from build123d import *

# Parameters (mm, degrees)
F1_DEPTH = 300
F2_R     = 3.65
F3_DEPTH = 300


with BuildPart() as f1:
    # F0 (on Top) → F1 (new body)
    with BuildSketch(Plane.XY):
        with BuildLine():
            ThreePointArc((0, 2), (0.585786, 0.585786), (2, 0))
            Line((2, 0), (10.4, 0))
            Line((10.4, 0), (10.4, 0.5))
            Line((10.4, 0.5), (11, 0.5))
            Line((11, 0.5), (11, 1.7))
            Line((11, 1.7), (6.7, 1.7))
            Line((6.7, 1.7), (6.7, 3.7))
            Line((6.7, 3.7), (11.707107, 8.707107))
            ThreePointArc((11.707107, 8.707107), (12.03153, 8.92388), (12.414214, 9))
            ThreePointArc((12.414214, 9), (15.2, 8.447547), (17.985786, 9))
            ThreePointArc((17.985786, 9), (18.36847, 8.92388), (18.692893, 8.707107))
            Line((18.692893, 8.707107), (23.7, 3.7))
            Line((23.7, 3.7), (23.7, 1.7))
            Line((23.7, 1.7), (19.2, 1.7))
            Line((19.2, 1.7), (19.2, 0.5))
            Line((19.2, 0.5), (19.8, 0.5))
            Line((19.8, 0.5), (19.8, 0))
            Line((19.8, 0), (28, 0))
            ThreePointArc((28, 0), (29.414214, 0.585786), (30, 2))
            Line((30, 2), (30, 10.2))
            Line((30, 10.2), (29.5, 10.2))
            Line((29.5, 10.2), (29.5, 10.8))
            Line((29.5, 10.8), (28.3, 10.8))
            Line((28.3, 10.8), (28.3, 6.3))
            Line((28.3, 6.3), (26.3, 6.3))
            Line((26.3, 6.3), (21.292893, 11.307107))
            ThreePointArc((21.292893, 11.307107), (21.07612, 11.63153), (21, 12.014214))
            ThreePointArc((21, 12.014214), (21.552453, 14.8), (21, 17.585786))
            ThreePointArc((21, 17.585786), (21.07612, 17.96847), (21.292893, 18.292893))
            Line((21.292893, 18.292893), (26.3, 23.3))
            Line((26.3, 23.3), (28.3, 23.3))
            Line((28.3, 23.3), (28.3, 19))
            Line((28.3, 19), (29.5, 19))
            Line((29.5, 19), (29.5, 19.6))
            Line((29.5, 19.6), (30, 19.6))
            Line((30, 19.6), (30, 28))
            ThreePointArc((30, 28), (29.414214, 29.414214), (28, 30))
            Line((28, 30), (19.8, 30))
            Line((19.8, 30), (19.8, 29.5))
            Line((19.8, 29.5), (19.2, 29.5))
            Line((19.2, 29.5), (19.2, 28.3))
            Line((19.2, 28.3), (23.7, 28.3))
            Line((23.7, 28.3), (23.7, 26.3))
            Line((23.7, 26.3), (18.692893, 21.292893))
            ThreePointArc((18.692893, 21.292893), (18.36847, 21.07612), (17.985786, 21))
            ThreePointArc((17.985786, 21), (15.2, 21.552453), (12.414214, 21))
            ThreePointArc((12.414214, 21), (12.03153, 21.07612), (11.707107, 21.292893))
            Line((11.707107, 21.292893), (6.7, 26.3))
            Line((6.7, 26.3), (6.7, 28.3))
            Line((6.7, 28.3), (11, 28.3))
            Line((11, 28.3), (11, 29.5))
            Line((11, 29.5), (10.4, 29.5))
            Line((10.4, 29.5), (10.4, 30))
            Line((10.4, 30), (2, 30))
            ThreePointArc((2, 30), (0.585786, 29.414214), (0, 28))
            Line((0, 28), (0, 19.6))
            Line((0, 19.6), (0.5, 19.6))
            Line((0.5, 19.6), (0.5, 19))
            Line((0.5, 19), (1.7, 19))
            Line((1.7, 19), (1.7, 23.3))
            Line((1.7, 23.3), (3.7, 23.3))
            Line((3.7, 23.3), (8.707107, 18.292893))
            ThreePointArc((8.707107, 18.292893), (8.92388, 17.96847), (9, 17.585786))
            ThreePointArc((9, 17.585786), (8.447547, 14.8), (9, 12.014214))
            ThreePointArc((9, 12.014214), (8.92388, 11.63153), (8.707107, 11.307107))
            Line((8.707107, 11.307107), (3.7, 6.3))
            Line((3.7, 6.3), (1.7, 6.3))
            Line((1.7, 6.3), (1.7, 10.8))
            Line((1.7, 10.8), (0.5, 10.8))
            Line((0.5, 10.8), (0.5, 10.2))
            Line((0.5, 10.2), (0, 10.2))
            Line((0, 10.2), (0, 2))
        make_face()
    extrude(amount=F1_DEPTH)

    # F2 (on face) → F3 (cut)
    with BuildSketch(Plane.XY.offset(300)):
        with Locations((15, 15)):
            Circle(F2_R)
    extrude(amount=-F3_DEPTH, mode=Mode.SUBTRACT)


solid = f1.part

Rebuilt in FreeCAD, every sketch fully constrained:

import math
import FreeCAD as App
import Part
import Sketcher
from FreeCAD import Vector

doc = App.newDocument("Part")
params = doc.addObject("Spreadsheet::Sheet", "Params")
for row, (alias, value) in enumerate([
    ("sketch1_radius", "1.999999 mm"),
    ("sketch1_width", "2 mm"),
    ("sketch1_width2", "8.4 mm"),
    ("sketch1_width3", "0.6 mm"),
    ("sketch1_width4", "4.3 mm"),
    ("pad1_length", "300 mm"),
    ("sketch2_diameter", "7.3 mm"),
    ("pocket1_length", "300 mm"),
], start=1):
    params.set(f"A{row}", alias)
    params.set(f"B{row}", "=" + value)
    params.setAlias(f"B{row}", alias)

body = doc.addObject("PartDesign::Body", "Body")

# Sketch on XY plane
sketch1 = body.newObject("Sketcher::SketchObject", "Sketch")
sketch1.AttachmentSupport = (doc.getObject("XY_Plane"), [""])
sketch1.MapMode = "FlatFace"
sketch1.addGeometry([
    Part.ArcOfCircle(Part.Circle(Vector(2, 2, 0), Vector(0, 0, 1), 2), math.radians(180), math.radians(270)),  # 0
    Part.LineSegment(Vector(2, 0, 0), Vector(10.4, 0, 0)),  # 1
    Part.LineSegment(Vector(10.4, 0, 0), Vector(10.4, 0.5, 0)),  # 2
    Part.LineSegment(Vector(10.4, 0.5, 0), Vector(11, 0.5, 0)),  # 3
    Part.LineSegment(Vector(11, 0.5, 0), Vector(11, 1.7, 0)),  # 4
    Part.LineSegment(Vector(11, 1.7, 0), Vector(6.7, 1.7, 0)),  # 5
    Part.LineSegment(Vector(6.7, 1.7, 0), Vector(6.7, 3.7, 0)),  # 6
    Part.LineSegment(Vector(6.7, 3.7, 0), Vector(11.7, 8.7, 0)),  # 7
    Part.ArcOfCircle(Part.Circle(Vector(12.4, 8, 0), Vector(0, 0, 1), 1), math.radians(90), math.radians(135)),  # 8
    Part.ArcOfCircle(Part.Circle(Vector(15.2, 15.7, 0), Vector(0, 0, 1), 7.3), math.radians(-112), math.radians(-68)),  # 9
    Part.ArcOfCircle(Part.Circle(Vector(18, 8, 0), Vector(0, 0, 1), 1), math.radians(45), math.radians(90)),  # 10
    Part.LineSegment(Vector(18.7, 8.7, 0), Vector(23.7, 3.7, 0)),  # 11
    Part.LineSegment(Vector(23.7, 3.7, 0), Vector(23.7, 1.7, 0)),  # 12
    Part.LineSegment(Vector(23.7, 1.7, 0), Vector(19.2, 1.7, 0)),  # 13
    Part.LineSegment(Vector(19.2, 1.7, 0), Vector(19.2, 0.5, 0)),  # 14
    Part.LineSegment(Vector(19.2, 0.5, 0), Vector(19.8, 0.5, 0)),  # 15
    Part.LineSegment(Vector(19.8, 0.5, 0), Vector(19.8, 0, 0)),  # 16
    Part.LineSegment(Vector(19.8, 0, 0), Vector(28, 0, 0)),  # 17
    Part.ArcOfCircle(Part.Circle(Vector(28, 2, 0), Vector(0, 0, 1), 2), math.radians(-90), math.radians(0)),  # 18
    Part.LineSegment(Vector(30, 2, 0), Vector(30, 10.2, 0)),  # 19
    Part.LineSegment(Vector(30, 10.2, 0), Vector(29.5, 10.2, 0)),  # 20
    Part.LineSegment(Vector(29.5, 10.2, 0), Vector(29.5, 10.8, 0)),  # 21
    Part.LineSegment(Vector(29.5, 10.8, 0), Vector(28.3, 10.8, 0)),  # 22
    Part.LineSegment(Vector(28.3, 10.8, 0), Vector(28.3, 6.3, 0)),  # 23
    Part.LineSegment(Vector(28.3, 6.3, 0), Vector(26.3, 6.3, 0)),  # 24
    Part.LineSegment(Vector(26.3, 6.3, 0), Vector(21.3, 11.3, 0)),  # 25
    Part.ArcOfCircle(Part.Circle(Vector(22, 12, 0), Vector(0, 0, 1), 1), math.radians(180), math.radians(225)),  # 26
    Part.ArcOfCircle(Part.Circle(Vector(14.3, 14.8, 0), Vector(0, 0, 1), 7.3), math.radians(-22), math.radians(22)),  # 27
    Part.ArcOfCircle(Part.Circle(Vector(22, 17.6, 0), Vector(0, 0, 1), 1), math.radians(135), math.radians(180)),  # 28
    Part.LineSegment(Vector(21.3, 18.3, 0), Vector(26.3, 23.3, 0)),  # 29
    Part.LineSegment(Vector(26.3, 23.3, 0), Vector(28.3, 23.3, 0)),  # 30
    Part.LineSegment(Vector(28.3, 23.3, 0), Vector(28.3, 19, 0)),  # 31
    Part.LineSegment(Vector(28.3, 19, 0), Vector(29.5, 19, 0)),  # 32
    Part.LineSegment(Vector(29.5, 19, 0), Vector(29.5, 19.6, 0)),  # 33
    Part.LineSegment(Vector(29.5, 19.6, 0), Vector(30, 19.6, 0)),  # 34
    Part.LineSegment(Vector(30, 19.6, 0), Vector(30, 28, 0)),  # 35
    Part.ArcOfCircle(Part.Circle(Vector(28, 28, 0), Vector(0, 0, 1), 2), math.radians(0), math.radians(90)),  # 36
    Part.LineSegment(Vector(28, 30, 0), Vector(19.8, 30, 0)),  # 37
    Part.LineSegment(Vector(19.8, 30, 0), Vector(19.8, 29.5, 0)),  # 38
    Part.LineSegment(Vector(19.8, 29.5, 0), Vector(19.2, 29.5, 0)),  # 39
    Part.LineSegment(Vector(19.2, 29.5, 0), Vector(19.2, 28.3, 0)),  # 40
    Part.LineSegment(Vector(19.2, 28.3, 0), Vector(23.7, 28.3, 0)),  # 41
    Part.LineSegment(Vector(23.7, 28.3, 0), Vector(23.7, 26.3, 0)),  # 42
    Part.LineSegment(Vector(23.7, 26.3, 0), Vector(18.7, 21.3, 0)),  # 43
    Part.ArcOfCircle(Part.Circle(Vector(18, 22, 0), Vector(0, 0, 1), 1), math.radians(-90), math.radians(-45)),  # 44
    Part.ArcOfCircle(Part.Circle(Vector(15.2, 14.3, 0), Vector(0, 0, 1), 7.3), math.radians(68), math.radians(112)),  # 45
    Part.ArcOfCircle(Part.Circle(Vector(12.4, 22, 0), Vector(0, 0, 1), 1), math.radians(-135), math.radians(-90)),  # 46
    Part.LineSegment(Vector(11.7, 21.3, 0), Vector(6.7, 26.3, 0)),  # 47
    Part.LineSegment(Vector(6.7, 26.3, 0), Vector(6.7, 28.3, 0)),  # 48
    Part.LineSegment(Vector(6.7, 28.3, 0), Vector(11, 28.3, 0)),  # 49
    Part.LineSegment(Vector(11, 28.3, 0), Vector(11, 29.5, 0)),  # 50
    Part.LineSegment(Vector(11, 29.5, 0), Vector(10.4, 29.5, 0)),  # 51
    Part.LineSegment(Vector(10.4, 29.5, 0), Vector(10.4, 30, 0)),  # 52
    Part.LineSegment(Vector(10.4, 30, 0), Vector(2, 30, 0)),  # 53
    Part.ArcOfCircle(Part.Circle(Vector(2, 28, 0), Vector(0, 0, 1), 2), math.radians(90), math.radians(180)),  # 54
    Part.LineSegment(Vector(0, 28, 0), Vector(0, 19.6, 0)),  # 55
    Part.LineSegment(Vector(0, 19.6, 0), Vector(0.5, 19.6, 0)),  # 56
    Part.LineSegment(Vector(0.5, 19.6, 0), Vector(0.5, 19, 0)),  # 57
    Part.LineSegment(Vector(0.5, 19, 0), Vector(1.7, 19, 0)),  # 58
    Part.LineSegment(Vector(1.7, 19, 0), Vector(1.7, 23.3, 0)),  # 59
    Part.LineSegment(Vector(1.7, 23.3, 0), Vector(3.7, 23.3, 0)),  # 60
    Part.LineSegment(Vector(3.7, 23.3, 0), Vector(8.7, 18.3, 0)),  # 61
    Part.ArcOfCircle(Part.Circle(Vector(8, 17.6, 0), Vector(0, 0, 1), 1), math.radians(0), math.radians(45)),  # 62
    Part.ArcOfCircle(Part.Circle(Vector(15.7, 14.8, 0), Vector(0, 0, 1), 7.3), math.radians(158), math.radians(202)),  # 63
    Part.ArcOfCircle(Part.Circle(Vector(8, 12, 0), Vector(0, 0, 1), 1), math.radians(-45), math.radians(0)),  # 64
    Part.LineSegment(Vector(8.7, 11.3, 0), Vector(3.7, 6.3, 0)),  # 65
    Part.LineSegment(Vector(3.7, 6.3, 0), Vector(1.7, 6.3, 0)),  # 66
    Part.LineSegment(Vector(1.7, 6.3, 0), Vector(1.7, 10.8, 0)),  # 67
    Part.LineSegment(Vector(1.7, 10.8, 0), Vector(0.5, 10.8, 0)),  # 68
    Part.LineSegment(Vector(0.5, 10.8, 0), Vector(0.5, 10.2, 0)),  # 69
    Part.LineSegment(Vector(0.5, 10.2, 0), Vector(0, 10.2, 0)),  # 70
    Part.LineSegment(Vector(0, 10.2, 0), Vector(0, 2, 0)),  # 71
], False)
sketch1.addConstraint([
    Sketcher.Constraint("Tangent", 0, 2, 1, 1),
    Sketcher.Constraint("Coincident", 1, 2, 2, 1),
    Sketcher.Constraint("Coincident", 2, 2, 3, 1),
    Sketcher.Constraint("Coincident", 3, 2, 4, 1),
    Sketcher.Constraint("Coincident", 4, 2, 5, 1),
    Sketcher.Constraint("Coincident", 5, 2, 6, 1),
    Sketcher.Constraint("Coincident", 6, 2, 7, 1),
    Sketcher.Constraint("Coincident", 7, 2, 8, 2),
    Sketcher.Constraint("Coincident", 8, 1, 9, 1),
    Sketcher.Constraint("Coincident", 9, 2, 10, 2),
    Sketcher.Constraint("Coincident", 10, 1, 11, 1),
    Sketcher.Constraint("Coincident", 11, 2, 12, 1),
    Sketcher.Constraint("Coincident", 12, 2, 13, 1),
    Sketcher.Constraint("Coincident", 13, 2, 14, 1),
    Sketcher.Constraint("Coincident", 14, 2, 15, 1),
    Sketcher.Constraint("Coincident", 15, 2, 16, 1),
    Sketcher.Constraint("Coincident", 16, 2, 17, 1),
    Sketcher.Constraint("Tangent", 17, 2, 18, 1),
    Sketcher.Constraint("Tangent", 18, 2, 19, 1),
    Sketcher.Constraint("Coincident", 19, 2, 20, 1),
    Sketcher.Constraint("Coincident", 20, 2, 21, 1),
    Sketcher.Constraint("Coincident", 21, 2, 22, 1),
    Sketcher.Constraint("Coincident", 22, 2, 23, 1),
    Sketcher.Constraint("Coincident", 23, 2, 24, 1),
    Sketcher.Constraint("Coincident", 24, 2, 25, 1),
    Sketcher.Constraint("Coincident", 25, 2, 26, 2),
    Sketcher.Constraint("Coincident", 26, 1, 27, 1),
    Sketcher.Constraint("Coincident", 27, 2, 28, 2),
    Sketcher.Constraint("Coincident", 28, 1, 29, 1),
    Sketcher.Constraint("Coincident", 29, 2, 30, 1),
    Sketcher.Constraint("Coincident", 30, 2, 31, 1),
    Sketcher.Constraint("Coincident", 31, 2, 32, 1),
    Sketcher.Constraint("Coincident", 32, 2, 33, 1),
    Sketcher.Constraint("Coincident", 33, 2, 34, 1),
    Sketcher.Constraint("Coincident", 34, 2, 35, 1),
    Sketcher.Constraint("Tangent", 35, 2, 36, 1),
    Sketcher.Constraint("Tangent", 36, 2, 37, 1),
    Sketcher.Constraint("Coincident", 37, 2, 38, 1),
    Sketcher.Constraint("Coincident", 38, 2, 39, 1),
    Sketcher.Constraint("Coincident", 39, 2, 40, 1),
    Sketcher.Constraint("Coincident", 40, 2, 41, 1),
    Sketcher.Constraint("Coincident", 41, 2, 42, 1),
    Sketcher.Constraint("Coincident", 42, 2, 43, 1),
    Sketcher.Constraint("Coincident", 43, 2, 44, 2),
    Sketcher.Constraint("Coincident", 44, 1, 45, 1),
    Sketcher.Constraint("Coincident", 45, 2, 46, 2),
    Sketcher.Constraint("Coincident", 46, 1, 47, 1),
    Sketcher.Constraint("Coincident", 47, 2, 48, 1),
    Sketcher.Constraint("Coincident", 48, 2, 49, 1),
    Sketcher.Constraint("Coincident", 49, 2, 50, 1),
    Sketcher.Constraint("Coincident", 50, 2, 51, 1),
    Sketcher.Constraint("Coincident", 51, 2, 52, 1),
    Sketcher.Constraint("Coincident", 52, 2, 53, 1),
    Sketcher.Constraint("Tangent", 53, 2, 54, 1),
    Sketcher.Constraint("Tangent", 54, 2, 55, 1),
    Sketcher.Constraint("Coincident", 55, 2, 56, 1),
    Sketcher.Constraint("Coincident", 56, 2, 57, 1),
    Sketcher.Constraint("Coincident", 57, 2, 58, 1),
    Sketcher.Constraint("Coincident", 58, 2, 59, 1),
    Sketcher.Constraint("Coincident", 59, 2, 60, 1),
    Sketcher.Constraint("Coincident", 60, 2, 61, 1),
    Sketcher.Constraint("Coincident", 61, 2, 62, 2),
    Sketcher.Constraint("Coincident", 62, 1, 63, 1),
    Sketcher.Constraint("Coincident", 63, 2, 64, 2),
    Sketcher.Constraint("Coincident", 64, 1, 65, 1),
    Sketcher.Constraint("Coincident", 65, 2, 66, 1),
    Sketcher.Constraint("Coincident", 66, 2, 67, 1),
    Sketcher.Constraint("Coincident", 67, 2, 68, 1),
    Sketcher.Constraint("Coincident", 68, 2, 69, 1),
    Sketcher.Constraint("Coincident", 69, 2, 70, 1),
    Sketcher.Constraint("Coincident", 70, 2, 71, 1),
    Sketcher.Constraint("Tangent", 71, 2, 0, 1),
    Sketcher.Constraint("Horizontal", 1),
    Sketcher.Constraint("Vertical", 2),
    Sketcher.Constraint("Horizontal", 3),
    Sketcher.Constraint("Vertical", 4),
    Sketcher.Constraint("Horizontal", 5),
    Sketcher.Constraint("Vertical", 6),
    Sketcher.Constraint("Vertical", 12),
    Sketcher.Constraint("Horizontal", 13),
    Sketcher.Constraint("Vertical", 14),
    Sketcher.Constraint("Horizontal", 15),
    Sketcher.Constraint("Vertical", 16),
    Sketcher.Constraint("Horizontal", 17),
    Sketcher.Constraint("Vertical", 19),
    Sketcher.Constraint("Horizontal", 20),
    Sketcher.Constraint("Vertical", 21),
    Sketcher.Constraint("Horizontal", 22),
    Sketcher.Constraint("Vertical", 23),
    Sketcher.Constraint("Horizontal", 24),
    Sketcher.Constraint("Horizontal", 30),
    Sketcher.Constraint("Vertical", 31),
    Sketcher.Constraint("Horizontal", 32),
    Sketcher.Constraint("Vertical", 33),
    Sketcher.Constraint("Horizontal", 34),
    Sketcher.Constraint("Vertical", 35),
    Sketcher.Constraint("Horizontal", 37),
    Sketcher.Constraint("Vertical", 38),
    Sketcher.Constraint("Horizontal", 39),
    Sketcher.Constraint("Vertical", 40),
    Sketcher.Constraint("Horizontal", 41),
    Sketcher.Constraint("Vertical", 42),
    Sketcher.Constraint("Vertical", 48),
    Sketcher.Constraint("Horizontal", 49),
    Sketcher.Constraint("Vertical", 50),
    Sketcher.Constraint("Horizontal", 51),
    Sketcher.Constraint("Vertical", 52),
    Sketcher.Constraint("Horizontal", 53),
    Sketcher.Constraint("Vertical", 55),
    Sketcher.Constraint("Horizontal", 56),
    Sketcher.Constraint("Vertical", 57),
    Sketcher.Constraint("Horizontal", 58),
    Sketcher.Constraint("Vertical", 59),
    Sketcher.Constraint("Horizontal", 60),
    Sketcher.Constraint("Horizontal", 66),
    Sketcher.Constraint("Vertical", 67),
    Sketcher.Constraint("Horizontal", 68),
    Sketcher.Constraint("Vertical", 69),
    Sketcher.Constraint("Horizontal", 70),
    Sketcher.Constraint("Vertical", 71),
    Sketcher.Constraint("Equal", 8, 10),
    Sketcher.Constraint("Equal", 0, 18),
    Sketcher.Constraint("Equal", 10, 26),
    Sketcher.Constraint("Equal", 9, 27),
    Sketcher.Constraint("Equal", 26, 28),
    Sketcher.Constraint("Equal", 18, 36),
    Sketcher.Constraint("Equal", 28, 44),
    Sketcher.Constraint("Equal", 27, 45),
    Sketcher.Constraint("Equal", 44, 46),
    Sketcher.Constraint("Equal", 36, 54),
    Sketcher.Constraint("Equal", 46, 62),
    Sketcher.Constraint("Equal", 45, 63),
    Sketcher.Constraint("Equal", 62, 64),
    Sketcher.Constraint("PointOnObject", 0, 2, -1),
    Sketcher.Constraint("PointOnObject", 16, 2, -1),
    Sketcher.Constraint("PointOnObject", 54, 2, -2),
    Sketcher.Constraint("PointOnObject", 70, 2, -2),
    Sketcher.Constraint("Perpendicular", 7, 11),
    Sketcher.Constraint("Parallel", 11, 25),
    Sketcher.Constraint("Perpendicular", 25, 29),
    Sketcher.Constraint("Parallel", 29, 43),
    Sketcher.Constraint("Perpendicular", 43, 47),
    Sketcher.Constraint("Parallel", 47, 61),
    Sketcher.Constraint("Perpendicular", 61, 65),
    Sketcher.Constraint("Horizontal", 8, 3, 10, 3),
    Sketcher.Constraint("Horizontal", 44, 3, 46, 3),
    Sketcher.Constraint("Horizontal", 36, 3, 54, 3),
    Sketcher.Constraint("Horizontal", 28, 3, 62, 3),
    Sketcher.Constraint("Horizontal", 27, 3, 63, 3),
    Sketcher.Constraint("Horizontal", 26, 3, 64, 3),
    Sketcher.Constraint("Horizontal", 7, 2, 10, 1),
    Sketcher.Constraint("Horizontal", 6, 2, 11, 2),
    Sketcher.Constraint("Horizontal", 5, 2, 12, 2),
    Sketcher.Constraint("Horizontal", 3, 2, 14, 2),
    Sketcher.Constraint("Horizontal", 43, 2, 46, 1),
    Sketcher.Constraint("Horizontal", 42, 2, 47, 2),
    Sketcher.Constraint("Horizontal", 41, 2, 48, 2),
    Sketcher.Constraint("Horizontal", 39, 2, 50, 2),
    Sketcher.Constraint("Horizontal", 34, 2, 55, 2),
    Sketcher.Constraint("Horizontal", 32, 2, 57, 2),
    Sketcher.Constraint("Horizontal", 30, 2, 59, 2),
    Sketcher.Constraint("Horizontal", 28, 1, 61, 2),
    Sketcher.Constraint("Horizontal", 27, 2, 62, 1),
    Sketcher.Constraint("Horizontal", 26, 1, 63, 2),
    Sketcher.Constraint("Horizontal", 25, 2, 64, 1),
    Sketcher.Constraint("Horizontal", 24, 2, 65, 2),
    Sketcher.Constraint("Horizontal", 22, 2, 67, 2),
    Sketcher.Constraint("Horizontal", 20, 2, 69, 2),
    Sketcher.Constraint("Vertical", 26, 3, 28, 3),
    Sketcher.Constraint("Vertical", 18, 3, 36, 3),
    Sketcher.Constraint("Vertical", 10, 3, 44, 3),
    Sketcher.Constraint("Vertical", 9, 3, 45, 3),
    Sketcher.Constraint("Vertical", 8, 3, 46, 3),
    Sketcher.Constraint("Vertical", 25, 2, 28, 1),
    Sketcher.Constraint("Vertical", 24, 2, 29, 2),
    Sketcher.Constraint("Vertical", 23, 2, 30, 2),
    Sketcher.Constraint("Vertical", 21, 2, 32, 2),
    Sketcher.Constraint("Vertical", 16, 2, 37, 2),
    Sketcher.Constraint("Vertical", 14, 2, 39, 2),
    Sketcher.Constraint("Vertical", 12, 2, 41, 2),
    Sketcher.Constraint("Vertical", 10, 1, 43, 2),
    Sketcher.Constraint("Vertical", 9, 2, 44, 1),
    Sketcher.Constraint("Vertical", 6, 2, 47, 2),
    Sketcher.Constraint("Vertical", 4, 2, 49, 2),
    Sketcher.Constraint("Vertical", 2, 2, 51, 2),
    Sketcher.Constraint("Vertical", 59, 2, 66, 2),
    Sketcher.Constraint("Vertical", 57, 2, 68, 2),
    Sketcher.Constraint("Equal", 3, 15),
    Sketcher.Constraint("Equal", 34, 56),
    Sketcher.Constraint("Equal", 32, 58),
    Sketcher.Constraint("Equal", 30, 60),
    Sketcher.Constraint("Equal", 70, 2),
    Sketcher.Constraint("Equal", 68, 4),
    Sketcher.Constraint("Equal", 66, 6),
    Sketcher.Constraint("Equal", 37, 19),
    Sketcher.Constraint("Equal", 51, 21),
    Sketcher.Constraint("Equal", 41, 23),
    Sketcher.Constraint("Equal", 49, 31),
    Sketcher.Constraint("Equal", 21, 33),
    Sketcher.Constraint("Equal", 53, 35),
    Sketcher.Constraint("Equal", 16, 38),
    Sketcher.Constraint("Equal", 14, 40),
    Sketcher.Constraint("Equal", 12, 42),
    Sketcher.Constraint("Equal", 11, 25),
    Sketcher.Constraint("Radius", 0, 1.999999),
    Sketcher.Constraint("DistanceX", 24, 2, 24, 1, 2.0),
    Sketcher.Constraint("DistanceX", 1, 1, 1, 2, 8.4),
    Sketcher.Constraint("DistanceX", 3, 1, 3, 2, 0.6),
    Sketcher.Constraint("DistanceX", 5, 2, 5, 1, 4.3),
    Sketcher.Constraint("DistanceX", 13, 2, 13, 1, 4.5),
    Sketcher.Constraint("DistanceX", 17, 1, 17, 2, 8.2),
    Sketcher.Constraint("DistanceX", 20, 2, 20, 1, 0.5),
    Sketcher.Constraint("DistanceX", 22, 2, 22, 1, 1.2),
    Sketcher.Constraint("DistanceX", -1, 1, 18, 3, 28.000001),
    Sketcher.Constraint("DistanceY", -1, 1, 36, 3, 28.000001),
    Sketcher.Constraint("DistanceY", -1, 1, 8, 1, 9.0),
    Sketcher.Constraint("DistanceX", -1, 1, 26, 1, 21.0),
    Sketcher.Constraint("DistanceX", -1, 1, 9, 3, 15.2),
    Sketcher.Constraint("DistanceY", -1, 1, 27, 3, 14.8),
    Sketcher.Constraint("Radius", 8, 0.999994),
    Sketcher.Constraint("Radius", 9, 7.299995),
    Sketcher.Constraint("Distance", 7, 7.081119),
    Sketcher.Constraint("DistanceY", -1, 1, 9, 3, 15.747542),
    Sketcher.Constraint("DistanceX", -1, 1, 27, 3, 14.252458),
])
sketch1.setExpression("Constraints[204]", "Params.sketch1_radius")
sketch1.setExpression("Constraints[205]", "Params.sketch1_width")
sketch1.setExpression("Constraints[206]", "Params.sketch1_width2")
sketch1.setExpression("Constraints[207]", "Params.sketch1_width3")
sketch1.setExpression("Constraints[208]", "Params.sketch1_width4")
pad1 = body.newObject("PartDesign::Pad", "Pad")
pad1.Profile = sketch1
pad1.setExpression("Length", "Params.pad1_length")

# Sketch on XY plane
sketch2 = body.newObject("Sketcher::SketchObject", "Sketch001")
sketch2.AttachmentSupport = (doc.getObject("XY_Plane"), [""])
sketch2.MapMode = "FlatFace"
sketch2.AttachmentOffset = App.Placement(Vector(0, 0, 300), App.Rotation())
sketch2.addGeometry(Part.Circle(Vector(15, 15, 0), Vector(0, 0, 1), 3.6), False)
sketch2.addConstraint([
    Sketcher.Constraint("Diameter", 0, 7.3),
    Sketcher.Constraint("DistanceX", -1, 1, 0, 3, 15.0),
    Sketcher.Constraint("DistanceY", -1, 1, 0, 3, 15.0),
])
sketch2.setExpression("Constraints[0]", "Params.sketch2_diameter")
pocket1 = body.newObject("PartDesign::Pocket", "Pocket")
pocket1.Profile = sketch2
pocket1.setExpression("Length", "Params.pocket1_length")

doc.recompute()
